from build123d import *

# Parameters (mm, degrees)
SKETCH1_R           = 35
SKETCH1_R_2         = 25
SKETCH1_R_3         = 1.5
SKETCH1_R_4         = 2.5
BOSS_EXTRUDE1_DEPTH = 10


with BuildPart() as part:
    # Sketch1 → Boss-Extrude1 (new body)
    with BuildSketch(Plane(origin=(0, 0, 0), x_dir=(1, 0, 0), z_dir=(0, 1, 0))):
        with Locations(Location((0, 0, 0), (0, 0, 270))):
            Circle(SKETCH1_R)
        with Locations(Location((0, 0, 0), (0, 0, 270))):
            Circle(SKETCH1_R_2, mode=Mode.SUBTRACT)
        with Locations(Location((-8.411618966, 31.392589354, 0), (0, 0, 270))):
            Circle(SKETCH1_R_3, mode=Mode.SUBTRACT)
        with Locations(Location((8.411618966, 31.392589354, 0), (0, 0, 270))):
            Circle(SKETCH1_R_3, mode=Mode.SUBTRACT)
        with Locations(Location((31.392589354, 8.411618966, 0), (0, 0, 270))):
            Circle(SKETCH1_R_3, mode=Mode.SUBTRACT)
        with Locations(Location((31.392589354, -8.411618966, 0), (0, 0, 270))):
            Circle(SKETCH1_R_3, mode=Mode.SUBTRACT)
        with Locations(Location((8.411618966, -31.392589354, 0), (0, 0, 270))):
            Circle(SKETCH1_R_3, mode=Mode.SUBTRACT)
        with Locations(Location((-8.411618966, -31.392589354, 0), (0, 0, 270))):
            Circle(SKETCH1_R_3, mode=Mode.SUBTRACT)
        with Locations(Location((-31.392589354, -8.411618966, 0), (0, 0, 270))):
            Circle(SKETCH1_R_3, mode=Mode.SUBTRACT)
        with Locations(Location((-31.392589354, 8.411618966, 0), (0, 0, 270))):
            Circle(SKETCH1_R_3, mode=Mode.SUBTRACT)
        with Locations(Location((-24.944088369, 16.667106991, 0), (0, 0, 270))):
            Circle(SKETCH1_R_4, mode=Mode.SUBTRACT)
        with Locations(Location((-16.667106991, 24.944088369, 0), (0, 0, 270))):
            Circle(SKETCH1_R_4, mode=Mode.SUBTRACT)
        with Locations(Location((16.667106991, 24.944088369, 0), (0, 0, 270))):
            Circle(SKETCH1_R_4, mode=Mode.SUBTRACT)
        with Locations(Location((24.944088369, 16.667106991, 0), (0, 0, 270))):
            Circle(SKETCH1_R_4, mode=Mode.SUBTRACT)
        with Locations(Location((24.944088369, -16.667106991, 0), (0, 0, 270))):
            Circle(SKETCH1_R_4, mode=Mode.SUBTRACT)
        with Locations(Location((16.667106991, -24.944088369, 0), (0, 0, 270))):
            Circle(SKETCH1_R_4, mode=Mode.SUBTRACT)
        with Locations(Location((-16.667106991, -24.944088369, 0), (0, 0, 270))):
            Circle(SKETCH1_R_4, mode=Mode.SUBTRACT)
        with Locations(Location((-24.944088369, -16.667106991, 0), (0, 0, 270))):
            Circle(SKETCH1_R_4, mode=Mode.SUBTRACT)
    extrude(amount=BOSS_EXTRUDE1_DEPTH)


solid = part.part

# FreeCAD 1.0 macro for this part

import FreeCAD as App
import Part
import Sketcher

V = App.Vector

doc = App.newDocument("Part")
body = doc.addObject("PartDesign::Body", "Body")

sketch1 = body.newObject("Sketcher::SketchObject", "Sketch")
sketch1.AttachmentSupport = (doc.getObject("XZ_Plane"), [""])
sketch1.MapMode = "FlatFace"
sketch1.addGeometry(Part.Circle(V(0, 0, 0), V(0, 0, 1), 35), False)
sketch1.addGeometry(Part.Circle(V(-24.9, -16.7, 0), V(0, 0, 1), 2.5), False)
sketch1.addGeometry(Part.Circle(V(-16.7, -24.9, 0), V(0, 0, 1), 2.5), False)
sketch1.addGeometry(Part.Circle(V(-31.4, -8.4, 0), V(0, 0, 1), 1.5), False)
sketch1.addGeometry(Part.Circle(V(-8.4, -31.4, 0), V(0, 0, 1), 1.5), False)
sketch1.addGeometry(Part.Circle(V(-31.4, 8.4, 0), V(0, 0, 1), 1.5), False)
sketch1.addGeometry(Part.Circle(V(-24.9, 16.7, 0), V(0, 0, 1), 2.5), False)
sketch1.addGeometry(Part.Circle(V(-16.7, 24.9, 0), V(0, 0, 1), 2.5), False)
sketch1.addGeometry(Part.Circle(V(-8.4, 31.4, 0), V(0, 0, 1), 1.5), False)
sketch1.addGeometry(Part.Circle(V(8.4, -31.4, 0), V(0, 0, 1), 1.5), False)
sketch1.addGeometry(Part.Circle(V(16.7, -24.9, 0), V(0, 0, 1), 2.5), False)
sketch1.addGeometry(Part.Circle(V(24.9, -16.7, 0), V(0, 0, 1), 2.5), False)
sketch1.addGeometry(Part.Circle(V(31.4, -8.4, 0), V(0, 0, 1), 1.5), False)
sketch1.addGeometry(Part.Circle(V(0, 0, 0), V(0, 0, 1), 25), False)
sketch1.addGeometry(Part.Circle(V(8.4, 31.4, 0), V(0, 0, 1), 1.5), False)
sketch1.addGeometry(Part.Circle(V(31.4, 8.4, 0), V(0, 0, 1), 1.5), False)
sketch1.addGeometry(Part.Circle(V(16.7, 24.9, 0), V(0, 0, 1), 2.5), False)
sketch1.addGeometry(Part.Circle(V(24.9, 16.7, 0), V(0, 0, 1), 2.5), False)
sketch1.addConstraint(Sketcher.Constraint("Coincident", 0, 3, -1, 1))
sketch1.addConstraint(Sketcher.Constraint("Coincident", 13, 3, -1, 1))
sketch1.addConstraint(Sketcher.Constraint("Equal", 1, 2))
sketch1.addConstraint(Sketcher.Constraint("Equal", 3, 4))
sketch1.addConstraint(Sketcher.Constraint("Equal", 4, 5))
sketch1.addConstraint(Sketcher.Constraint("Equal", 2, 6))
sketch1.addConstraint(Sketcher.Constraint("Equal", 6, 7))
sketch1.addConstraint(Sketcher.Constraint("Equal", 5, 8))
sketch1.addConstraint(Sketcher.Constraint("Equal", 8, 9))
sketch1.addConstraint(Sketcher.Constraint("Equal", 7, 10))
sketch1.addConstraint(Sketcher.Constraint("Equal", 10, 11))
sketch1.addConstraint(Sketcher.Constraint("Equal", 9, 12))
sketch1.addConstraint(Sketcher.Constraint("Equal", 12, 14))
sketch1.addConstraint(Sketcher.Constraint("Equal", 14, 15))
sketch1.addConstraint(Sketcher.Constraint("Equal", 11, 16))
sketch1.addConstraint(Sketcher.Constraint("Equal", 16, 17))
sketch1.addConstraint(Sketcher.Constraint("Symmetric", 8, 3, 9, 3, -1, 1))
sketch1.addConstraint(Sketcher.Constraint("Symmetric", 7, 3, 10, 3, -1, 1))
sketch1.addConstraint(Sketcher.Constraint("Symmetric", 6, 3, 11, 3, -1, 1))
sketch1.addConstraint(Sketcher.Constraint("Symmetric", 5, 3, 12, 3, -1, 1))
sketch1.addConstraint(Sketcher.Constraint("Symmetric", 4, 3, 14, 3, -1, 1))
sketch1.addConstraint(Sketcher.Constraint("Symmetric", 3, 3, 15, 3, -1, 1))
sketch1.addConstraint(Sketcher.Constraint("Symmetric", 2, 3, 16, 3, -1, 1))
sketch1.addConstraint(Sketcher.Constraint("Symmetric", 1, 3, 17, 3, -1, 1))
sketch1.addConstraint(Sketcher.Constraint("Symmetric", 4, 3, 9, 3, -2))
sketch1.addConstraint(Sketcher.Constraint("Symmetric", 2, 3, 10, 3, -2))
sketch1.addConstraint(Sketcher.Constraint("Symmetric", 1, 3, 11, 3, -2))
sketch1.addConstraint(Sketcher.Constraint("Symmetric", 3, 3, 12, 3, -2))
sketch1.addConstraint(Sketcher.Constraint("Diameter", 0, 70.0))
sketch1.addConstraint(Sketcher.Constraint("Diameter", 1, 5.0))
sketch1.addConstraint(Sketcher.Constraint("Diameter", 3, 3.0))
sketch1.addConstraint(Sketcher.Constraint("Diameter", 13, 50.0))
sketch1.addConstraint(Sketcher.Constraint("DistanceX", 3, 3, 1, 3, 6.448501))
sketch1.addConstraint(Sketcher.Constraint("DistanceY", 4, 3, 2, 3, 6.448501))
sketch1.addConstraint(Sketcher.Constraint("DistanceX", 1, 3, -1, 1, 24.944088))
sketch1.addConstraint(Sketcher.Constraint("DistanceY", 2, 3, -1, 1, 24.944088))
sketch1.addConstraint(Sketcher.Constraint("DistanceY", 3, 3, -1, 1, 8.411619))
sketch1.addConstraint(Sketcher.Constraint("DistanceX", 4, 3, -1, 1, 8.411619))
sketch1.addConstraint(Sketcher.Constraint("DistanceX", 1, 3, 2, 3, 8.276981))
sketch1.addConstraint(Sketcher.Constraint("DistanceY", 2, 3, 1, 3, 8.276981))
pad1 = body.newObject("PartDesign::Pad", "Pad")
pad1.Profile = sketch1
pad1.Length = 10
pad1.Reversed = True

doc.recompute()
